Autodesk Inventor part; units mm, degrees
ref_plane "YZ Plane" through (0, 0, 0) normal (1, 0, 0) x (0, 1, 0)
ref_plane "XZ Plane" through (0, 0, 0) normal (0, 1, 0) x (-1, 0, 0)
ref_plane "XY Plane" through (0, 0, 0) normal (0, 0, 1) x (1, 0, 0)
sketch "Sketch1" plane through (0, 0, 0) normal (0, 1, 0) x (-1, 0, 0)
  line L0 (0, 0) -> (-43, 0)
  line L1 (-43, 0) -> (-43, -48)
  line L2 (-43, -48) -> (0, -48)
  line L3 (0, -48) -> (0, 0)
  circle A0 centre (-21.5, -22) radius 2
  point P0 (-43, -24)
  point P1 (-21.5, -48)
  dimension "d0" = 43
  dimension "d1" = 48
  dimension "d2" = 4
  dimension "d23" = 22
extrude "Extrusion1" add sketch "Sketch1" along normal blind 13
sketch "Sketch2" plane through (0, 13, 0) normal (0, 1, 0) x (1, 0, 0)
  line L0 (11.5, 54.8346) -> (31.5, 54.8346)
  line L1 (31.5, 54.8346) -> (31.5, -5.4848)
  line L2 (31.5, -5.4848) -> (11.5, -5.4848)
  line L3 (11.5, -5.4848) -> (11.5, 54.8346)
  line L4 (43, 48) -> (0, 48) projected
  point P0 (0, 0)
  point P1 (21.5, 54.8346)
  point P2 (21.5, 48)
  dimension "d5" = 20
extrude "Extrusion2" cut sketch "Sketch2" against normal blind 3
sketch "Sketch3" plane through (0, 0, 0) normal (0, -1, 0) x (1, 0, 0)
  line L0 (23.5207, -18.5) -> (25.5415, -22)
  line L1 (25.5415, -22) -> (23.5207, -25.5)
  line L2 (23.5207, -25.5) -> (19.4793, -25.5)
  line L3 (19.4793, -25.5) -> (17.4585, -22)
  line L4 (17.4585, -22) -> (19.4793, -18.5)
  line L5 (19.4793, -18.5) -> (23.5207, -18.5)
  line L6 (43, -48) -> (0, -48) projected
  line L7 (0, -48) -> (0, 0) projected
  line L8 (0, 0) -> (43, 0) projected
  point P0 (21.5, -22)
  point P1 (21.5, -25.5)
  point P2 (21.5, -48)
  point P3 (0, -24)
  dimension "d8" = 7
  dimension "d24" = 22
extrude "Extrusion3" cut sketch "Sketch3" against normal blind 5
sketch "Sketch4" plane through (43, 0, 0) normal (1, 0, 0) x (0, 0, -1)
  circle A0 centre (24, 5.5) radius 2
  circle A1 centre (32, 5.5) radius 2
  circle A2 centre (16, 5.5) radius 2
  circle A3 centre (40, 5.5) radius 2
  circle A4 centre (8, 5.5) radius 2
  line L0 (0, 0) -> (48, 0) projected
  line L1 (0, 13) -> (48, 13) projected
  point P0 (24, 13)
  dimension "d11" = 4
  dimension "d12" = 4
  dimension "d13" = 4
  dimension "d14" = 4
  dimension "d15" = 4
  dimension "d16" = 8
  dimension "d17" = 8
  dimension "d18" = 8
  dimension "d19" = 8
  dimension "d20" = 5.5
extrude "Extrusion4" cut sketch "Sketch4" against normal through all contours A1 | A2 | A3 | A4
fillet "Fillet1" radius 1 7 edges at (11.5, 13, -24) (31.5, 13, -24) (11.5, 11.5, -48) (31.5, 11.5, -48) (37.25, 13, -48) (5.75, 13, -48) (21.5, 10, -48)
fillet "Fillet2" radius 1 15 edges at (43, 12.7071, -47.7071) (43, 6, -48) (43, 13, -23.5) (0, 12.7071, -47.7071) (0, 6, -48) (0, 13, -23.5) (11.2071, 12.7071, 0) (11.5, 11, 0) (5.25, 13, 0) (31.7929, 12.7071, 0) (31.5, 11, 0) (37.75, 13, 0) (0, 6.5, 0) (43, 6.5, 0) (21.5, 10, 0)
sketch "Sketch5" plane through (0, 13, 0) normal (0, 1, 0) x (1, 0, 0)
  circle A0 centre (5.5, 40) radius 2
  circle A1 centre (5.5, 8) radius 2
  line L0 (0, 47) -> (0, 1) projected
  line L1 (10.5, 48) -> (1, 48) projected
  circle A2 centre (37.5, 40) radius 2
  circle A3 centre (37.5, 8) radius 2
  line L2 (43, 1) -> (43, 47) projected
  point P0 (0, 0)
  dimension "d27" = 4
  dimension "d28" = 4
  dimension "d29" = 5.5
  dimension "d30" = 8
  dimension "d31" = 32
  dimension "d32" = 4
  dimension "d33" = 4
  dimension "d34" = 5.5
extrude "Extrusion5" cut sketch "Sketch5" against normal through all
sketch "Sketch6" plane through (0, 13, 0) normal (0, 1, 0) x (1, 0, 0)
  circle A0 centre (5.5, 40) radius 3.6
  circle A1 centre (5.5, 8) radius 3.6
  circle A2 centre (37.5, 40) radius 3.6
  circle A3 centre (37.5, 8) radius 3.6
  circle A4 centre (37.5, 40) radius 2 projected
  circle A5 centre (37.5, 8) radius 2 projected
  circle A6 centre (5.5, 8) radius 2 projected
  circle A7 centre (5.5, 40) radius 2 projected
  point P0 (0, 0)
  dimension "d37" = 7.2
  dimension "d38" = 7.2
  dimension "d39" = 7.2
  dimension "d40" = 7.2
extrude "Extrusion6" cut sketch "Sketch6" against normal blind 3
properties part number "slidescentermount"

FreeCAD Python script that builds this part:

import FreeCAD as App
import Part
import Sketcher
Q = App.Units.Quantity


def edges_at(feature, points):
    """Names of the edges that pass closest to the given points."""
    edges = feature.Shape.Edges
    near = lambda p: min(range(len(edges)), key=lambda i: edges[i].distToShape(Part.Vertex(*p))[0])
    return sorted({f"Edge{near(p) + 1}" for p in points})


def add_polygon(sketch, points):
    """Adds a closed chain of lines whose ends are joined by coincident constraints."""
    first, n = sketch.GeometryCount, len(points)
    for a, b in zip(points, points[1:] + points[:1]):
        sketch.addGeometry(Part.LineSegment(App.Vector(*a, 0), App.Vector(*b, 0)), False)
    for i in range(n):
        sketch.addConstraint(Sketcher.Constraint("Coincident", first + i, 2, first + (i + 1) % n, 1))

doc = App.newDocument("Part")
body = doc.addObject("PartDesign::Body", "Body")

# Sketch on XZ plane
sketch1 = body.newObject("Sketcher::SketchObject", "Sketch")
sketch1.AttachmentSupport = (doc.getObject("XZ_Plane"), [""])
sketch1.MapMode = "FlatFace"
add_polygon(sketch1, [(0, -48), (0, 0), (43, 0), (43, -48)])  # lines 0-3
sketch1.addGeometry(Part.Circle(App.Vector(21.5, -22, 0), App.Vector(0, 0, 1), 2), False)  # 4
sketch1.addConstraint(Sketcher.Constraint("Vertical", 0))
sketch1.addConstraint(Sketcher.Constraint("Horizontal", 1))
sketch1.addConstraint(Sketcher.Constraint("Vertical", 2))
sketch1.addConstraint(Sketcher.Constraint("Horizontal", 3))
sketch1.addConstraint(Sketcher.Constraint("Coincident", 0, 2, -1, 1))
sketch1.addConstraint(Sketcher.Constraint("Diameter", 4, 4.0))
sketch1.addConstraint(Sketcher.Constraint("DistanceX", 1, 1, 1, 2, 43.0))
sketch1.addConstraint(Sketcher.Constraint("DistanceY", 0, 1, 0, 2, 48.0))
sketch1.addConstraint(Sketcher.Constraint("DistanceY", 4, 3, -1, 1, 22.0))
sketch1.addConstraint(Sketcher.Constraint("DistanceX", -1, 1, 4, 3, 21.5))
pad1 = body.newObject("PartDesign::Pad", "Pad")
pad1.Profile = sketch1
pad1.Length = 13
pad1.Reversed = True

# Sketch on XZ plane
sketch2 = body.newObject("Sketcher::SketchObject", "Sketch001")
sketch2.AttachmentSupport = (doc.getObject("XZ_Plane"), [""])
sketch2.MapMode = "FlatFace"
sketch2.AttachmentOffset = App.Placement(App.Vector(0, 0, -13), App.Rotation())
add_polygon(sketch2, [(32, -55), (12, -55), (12, 5), (32, 5)])  # lines 0-3
sketch2.addConstraint(Sketcher.Constraint("Horizontal", 0))
sketch2.addConstraint(Sketcher.Constraint("Vertical", 1))
sketch2.addConstraint(Sketcher.Constraint("Horizontal", 2))
sketch2.addConstraint(Sketcher.Constraint("Vertical", 3))
sketch2.addConstraint(Sketcher.Constraint("DistanceX", 0, 2, 0, 1, 20.0))
sketch2.addConstraint(Sketcher.Constraint("DistanceX", -1, 1, 0, 2, 11.5))
sketch2.addConstraint(Sketcher.Constraint("DistanceY", 1, 1, 1, 2, 60.3194))
sketch2.addConstraint(Sketcher.Constraint("DistanceY", 0, 2, -1, 1, 54.8346))
pocket1 = body.newObject("PartDesign::Pocket", "Pocket")
pocket1.Profile = sketch2
pocket1.Length = 3
pocket1.Reversed = True

# Sketch on XZ plane
sketch3 = body.newObject("Sketcher::SketchObject", "Sketch002")
sketch3.AttachmentSupport = (doc.getObject("XZ_Plane"), [""])
sketch3.MapMode = "FlatFace"
add_polygon(sketch3, [(25.5, -22), (23.5, -18.5), (19.5, -18.5), (17.5, -22), (19.5, -25.5), (23.5, -25.5)])  # lines 0-5
sketch3.addConstraint(Sketcher.Constraint("Horizontal", 1))
sketch3.addConstraint(Sketcher.Constraint("Horizontal", 4))
sketch3.addConstraint(Sketcher.Constraint("Parallel", 0, 3))
sketch3.addConstraint(Sketcher.Constraint("Parallel", 2, 5))
sketch3.addConstraint(Sketcher.Constraint("Horizontal", 2, 2, 5, 2))
sketch3.addConstraint(Sketcher.Constraint("Vertical", 1, 2, 3, 2))
sketch3.addConstraint(Sketcher.Constraint("Vertical", 0, 2, 4, 2))
sketch3.addConstraint(Sketcher.Constraint("DistanceY", 2, 2, -1, 1, 22.0))
sketch3.addConstraint(Sketcher.Constraint("DistanceY", 3, 2, 1, 2, 7.0))
sketch3.addConstraint(Sketcher.Constraint("Angle", 0, Q("120.001 deg")))
sketch3.addConstraint(Sketcher.Constraint("DistanceX", 1, 2, 1, 1, 4.0414))
sketch3.addConstraint(Sketcher.Constraint("DistanceX", -1, 1, 0, 2, 23.5207))
pocket2 = body.newObject("PartDesign::Pocket", "Pocket001")
pocket2.Profile = sketch3
pocket2.Length = 5

# Sketch on YZ plane
sketch4 = body.newObject("Sketcher::SketchObject", "Sketch003")
sketch4.AttachmentSupport = (doc.getObject("YZ_Plane"), [""])
sketch4.MapMode = "FlatFace"
sketch4.AttachmentOffset = App.Placement(App.Vector(0, 0, 43), App.Rotation())
sketch4.addGeometry(Part.Circle(App.Vector(5.5, -32, 0), App.Vector(0, 0, 1), 2), False)
sketch4.addGeometry(Part.Circle(App.Vector(5.5, -16, 0), App.Vector(0, 0, 1), 2), False)
sketch4.addGeometry(Part.Circle(App.Vector(5.5, -40, 0), App.Vector(0, 0, 1), 2), False)
sketch4.addGeometry(Part.Circle(App.Vector(5.5, -8, 0), App.Vector(0, 0, 1), 2), False)
sketch4.addConstraint(Sketcher.Constraint("Equal", 0, 1))
sketch4.addConstraint(Sketcher.Constraint("Equal", 1, 2))
sketch4.addConstraint(Sketcher.Constraint("Equal", 2, 3))
sketch4.addConstraint(Sketcher.Constraint("Vertical", 0, 3, 1, 3))
sketch4.addConstraint(Sketcher.Constraint("Vertical", 1, 3, 2, 3))
sketch4.addConstraint(Sketcher.Constraint("Vertical", 2, 3, 3, 3))
sketch4.addConstraint(Sketcher.Constraint("Diameter", 0, 4.0))
sketch4.addConstraint(Sketcher.Constraint("DistanceY", 3, 3, -1, 1, 8.0))
sketch4.addConstraint(Sketcher.Constraint("DistanceY", 2, 3, 0, 3, 8.0))
sketch4.addConstraint(Sketcher.Constraint("DistanceY", 1, 3, 3, 3, 8.0))
sketch4.addConstraint(Sketcher.Constraint("DistanceX", -1, 1, 0, 3, 5.5))
sketch4.addConstraint(Sketcher.Constraint("DistanceY", 0, 3, -1, 1, 32.0))
pocket3 = body.newObject("PartDesign::Pocket", "Pocket002")
pocket3.Profile = sketch4
pocket3.Type = "ThroughAll"
doc.recompute()

fillet = body.newObject("PartDesign::Fillet", "Fillet")
fillet.Base = (pocket3, edges_at(pocket3, [
    (11.5, 13, -24),
    (31.5, 13, -24),
    (11.5, 11.5, -48),
    (31.5, 11.5, -48),
    (37.25, 13, -48),
    (5.75, 13, -48),
    (21.5, 10, -48),
]))
fillet.Radius = 1
doc.recompute()

fillet2 = body.newObject("PartDesign::Fillet", "Fillet001")
fillet2.Base = (fillet, edges_at(fillet, [
    (43, 12.707, -47.707),
    (43, 6, -48),
    (43, 13, -23.5),
    (0, 12.707, -47.707),
    (0, 6, -48),
    (0, 13, -23.5),
    (11.207, 12.707, 0),
    (11.5, 11, 0),
    (5.25, 13, 0),
    (31.793, 12.707, 0),
    (31.5, 11, 0),
    (37.75, 13, 0),
    (0, 6.5, 0),
    (43, 6.5, 0),
    (21.5, 10, 0),
]))
fillet2.Radius = 1

# Sketch on XZ plane
sketch5 = body.newObject("Sketcher::SketchObject", "Sketch004")
sketch5.AttachmentSupport = (doc.getObject("XZ_Plane"), [""])
sketch5.MapMode = "FlatFace"
sketch5.AttachmentOffset = App.Placement(App.Vector(0, 0, -13), App.Rotation())
sketch5.addGeometry(Part.Circle(App.Vector(5.5, -40, 0), App.Vector(0, 0, 1), 2), False)
sketch5.addGeometry(Part.Circle(App.Vector(5.5, -8, 0), App.Vector(0, 0, 1), 2), False)
sketch5.addGeometry(Part.Circle(App.Vector(37.5, -40, 0), App.Vector(0, 0, 1), 2), False)
sketch5.addGeometry(Part.Circle(App.Vector(37.5, -8, 0), App.Vector(0, 0, 1), 2), False)
sketch5.addConstraint(Sketcher.Constraint("Equal", 0, 1))
sketch5.addConstraint(Sketcher.Constraint("Equal", 1, 2))
sketch5.addConstraint(Sketcher.Constraint("Equal", 2, 3))
sketch5.addConstraint(Sketcher.Constraint("Horizontal", 0, 3, 2, 3))
sketch5.addConstraint(Sketcher.Constraint("Horizontal", 1, 3, 3, 3))
sketch5.addConstraint(Sketcher.Constraint("Vertical", 0, 3, 1, 3))
sketch5.addConstraint(Sketcher.Constraint("Vertical", 2, 3, 3, 3))
sketch5.addConstraint(Sketcher.Constraint("Diameter", 0, 4.0))
sketch5.addConstraint(Sketcher.Constraint("DistanceY", 1, 3, -1, 1, 8.0))
sketch5.addConstraint(Sketcher.Constraint("DistanceY", 0, 3, 1, 3, 32.0))
sketch5.addConstraint(Sketcher.Constraint("DistanceX", 0, 3, 2, 3, 32.0))
sketch5.addConstraint(Sketcher.Constraint("DistanceX", -1, 1, 0, 3, 5.5))
pocket4 = body.newObject("PartDesign::Pocket", "Pocket003")
pocket4.Profile = sketch5
pocket4.Type = "ThroughAll"
pocket4.Reversed = True

# Sketch on XZ plane
sketch6 = body.newObject("Sketcher::SketchObject", "Sketch005")
sketch6.AttachmentSupport = (doc.getObject("XZ_Plane"), [""])
sketch6.MapMode = "FlatFace"
sketch6.AttachmentOffset = App.Placement(App.Vector(0, 0, -13), App.Rotation())
sketch6.addGeometry(Part.Circle(App.Vector(5.5, -40, 0), App.Vector(0, 0, 1), 3.6), False)
sketch6.addGeometry(Part.Circle(App.Vector(5.5, -40, 0), App.Vector(0, 0, 1), 2), False)
sketch6.addGeometry(Part.Circle(App.Vector(5.5, -8, 0), App.Vector(0, 0, 1), 3.6), False)
sketch6.addGeometry(Part.Circle(App.Vector(5.5, -8, 0), App.Vector(0, 0, 1), 2), False)
sketch6.addGeometry(Part.Circle(App.Vector(37.5, -40, 0), App.Vector(0, 0, 1), 3.6), False)
sketch6.addGeometry(Part.Circle(App.Vector(37.5, -40, 0), App.Vector(0, 0, 1), 2), False)
sketch6.addGeometry(Part.Circle(App.Vector(37.5, -8, 0), App.Vector(0, 0, 1), 3.6), False)
sketch6.addGeometry(Part.Circle(App.Vector(37.5, -8, 0), App.Vector(0, 0, 1), 2), False)
sketch6.addConstraint(Sketcher.Constraint("Coincident", 1, 3, 0, 3))
sketch6.addConstraint(Sketcher.Constraint("Coincident", 3, 3, 2, 3))
sketch6.addConstraint(Sketcher.Constraint("Coincident", 5, 3, 4, 3))
sketch6.addConstraint(Sketcher.Constraint("Coincident", 7, 3, 6, 3))
sketch6.addConstraint(Sketcher.Constraint("Equal", 0, 2))
sketch6.addConstraint(Sketcher.Constraint("Equal", 1, 3))
sketch6.addConstraint(Sketcher.Constraint("Equal", 2, 4))
sketch6.addConstraint(Sketcher.Constraint("Equal", 3, 5))
sketch6.addConstraint(Sketcher.Constraint("Equal", 4, 6))
sketch6.addConstraint(Sketcher.Constraint("Equal", 5, 7))
sketch6.addConstraint(Sketcher.Constraint("Horizontal", 1, 3, 4, 3))
sketch6.addConstraint(Sketcher.Constraint("Horizontal", 3, 3, 6, 3))
sketch6.addConstraint(Sketcher.Constraint("Vertical", 1, 3, 2, 3))
sketch6.addConstraint(Sketcher.Constraint("Vertical", 5, 3, 6, 3))
sketch6.addConstraint(Sketcher.Constraint("Diameter", 0, 7.2))
sketch6.addConstraint(Sketcher.Constraint("Diameter", 1, 4.0))
sketch6.addConstraint(Sketcher.Constraint("DistanceY", 0, 3, -1, 1, 40.0))
sketch6.addConstraint(Sketcher.Constraint("DistanceY", 2, 3, -1, 1, 8.0))
sketch6.addConstraint(Sketcher.Constraint("DistanceX", 0, 3, 4, 3, 32.0))
sketch6.addConstraint(Sketcher.Constraint("DistanceX", -1, 1, 0, 3, 5.5))
pocket5 = body.newObject("PartDesign::Pocket", "Pocket004")
pocket5.Profile = sketch6
pocket5.Length = 3
pocket5.Reversed = True

doc.recompute()
